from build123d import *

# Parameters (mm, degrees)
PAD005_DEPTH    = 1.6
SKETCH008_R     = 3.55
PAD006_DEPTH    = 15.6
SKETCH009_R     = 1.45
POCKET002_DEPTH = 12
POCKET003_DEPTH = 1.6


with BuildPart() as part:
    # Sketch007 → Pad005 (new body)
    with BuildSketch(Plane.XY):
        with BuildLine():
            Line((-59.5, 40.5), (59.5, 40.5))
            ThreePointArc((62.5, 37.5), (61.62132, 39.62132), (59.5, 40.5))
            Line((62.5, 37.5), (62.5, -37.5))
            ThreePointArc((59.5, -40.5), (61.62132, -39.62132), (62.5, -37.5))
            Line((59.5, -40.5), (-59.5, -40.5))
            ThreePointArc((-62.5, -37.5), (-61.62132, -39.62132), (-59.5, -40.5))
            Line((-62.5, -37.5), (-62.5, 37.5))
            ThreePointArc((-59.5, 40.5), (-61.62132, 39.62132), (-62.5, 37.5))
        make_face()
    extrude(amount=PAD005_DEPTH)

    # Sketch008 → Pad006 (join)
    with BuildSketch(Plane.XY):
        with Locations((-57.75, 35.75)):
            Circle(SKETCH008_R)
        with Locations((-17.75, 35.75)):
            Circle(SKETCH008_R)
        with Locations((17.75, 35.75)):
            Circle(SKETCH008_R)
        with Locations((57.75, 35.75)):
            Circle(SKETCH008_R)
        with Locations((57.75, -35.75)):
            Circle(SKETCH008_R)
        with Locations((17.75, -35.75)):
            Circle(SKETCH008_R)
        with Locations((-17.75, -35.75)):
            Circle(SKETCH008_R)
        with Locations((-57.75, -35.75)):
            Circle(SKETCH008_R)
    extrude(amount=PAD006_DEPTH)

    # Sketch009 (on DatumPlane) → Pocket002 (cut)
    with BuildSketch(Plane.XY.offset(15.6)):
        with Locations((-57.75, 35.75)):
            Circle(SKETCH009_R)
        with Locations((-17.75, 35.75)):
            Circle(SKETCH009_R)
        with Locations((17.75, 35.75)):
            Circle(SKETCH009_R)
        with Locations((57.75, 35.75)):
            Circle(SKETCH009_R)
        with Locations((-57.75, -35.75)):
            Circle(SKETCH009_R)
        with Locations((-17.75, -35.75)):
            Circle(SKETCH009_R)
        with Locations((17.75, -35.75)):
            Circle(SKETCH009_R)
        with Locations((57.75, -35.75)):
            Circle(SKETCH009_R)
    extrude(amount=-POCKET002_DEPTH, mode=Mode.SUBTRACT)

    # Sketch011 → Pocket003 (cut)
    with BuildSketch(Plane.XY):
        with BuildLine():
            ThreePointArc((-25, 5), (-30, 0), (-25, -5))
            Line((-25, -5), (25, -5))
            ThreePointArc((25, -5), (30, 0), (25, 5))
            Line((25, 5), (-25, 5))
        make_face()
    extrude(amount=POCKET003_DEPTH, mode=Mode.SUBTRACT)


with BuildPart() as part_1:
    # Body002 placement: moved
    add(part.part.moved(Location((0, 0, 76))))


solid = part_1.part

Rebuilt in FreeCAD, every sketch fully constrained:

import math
import FreeCAD as App
import Part
import Sketcher

doc = App.newDocument("Part")
body = doc.addObject("PartDesign::Body", "Body")

sketch1 = body.newObject("Sketcher::SketchObject", "Sketch")
sketch1.AttachmentSupport = (doc.getObject("XY_Plane"), [""])
sketch1.MapMode = "FlatFace"
sketch1.addGeometry(Part.LineSegment(App.Vector(59.5, 40.5, 0), App.Vector(-59.5, 40.5, 0)), False)
sketch1.addGeometry(Part.ArcOfCircle(Part.Circle(App.Vector(-59.5, 37.5, 0), App.Vector(0, 0, 1), 3), math.radians(90), math.radians(180)), False)
sketch1.addGeometry(Part.LineSegment(App.Vector(-62.5, 37.5, 0), App.Vector(-62.5, -37.5, 0)), False)
sketch1.addGeometry(Part.ArcOfCircle(Part.Circle(App.Vector(-59.5, -37.5, 0), App.Vector(0, 0, 1), 3), math.radians(-180), math.radians(-90)), False)
sketch1.addGeometry(Part.LineSegment(App.Vector(-59.5, -40.5, 0), App.Vector(59.5, -40.5, 0)), False)
sketch1.addGeometry(Part.ArcOfCircle(Part.Circle(App.Vector(59.5, -37.5, 0), App.Vector(0, 0, 1), 3), math.radians(-90), math.radians(0)), False)
sketch1.addGeometry(Part.LineSegment(App.Vector(62.5, -37.5, 0), App.Vector(62.5, 37.5, 0)), False)
sketch1.addGeometry(Part.ArcOfCircle(Part.Circle(App.Vector(59.5, 37.5, 0), App.Vector(0, 0, 1), 3), math.radians(0), math.radians(90)), False)
sketch1.addConstraint(Sketcher.Constraint("Tangent", 0, 2, 1, 1))
sketch1.addConstraint(Sketcher.Constraint("Tangent", 1, 2, 2, 1))
sketch1.addConstraint(Sketcher.Constraint("Tangent", 2, 2, 3, 1))
sketch1.addConstraint(Sketcher.Constraint("Tangent", 3, 2, 4, 1))
sketch1.addConstraint(Sketcher.Constraint("Tangent", 4, 2, 5, 1))
sketch1.addConstraint(Sketcher.Constraint("Tangent", 5, 2, 6, 1))
sketch1.addConstraint(Sketcher.Constraint("Tangent", 6, 2, 7, 1))
sketch1.addConstraint(Sketcher.Constraint("Tangent", 7, 2, 0, 1))
sketch1.addConstraint(Sketcher.Constraint("Horizontal", 0))
sketch1.addConstraint(Sketcher.Constraint("Vertical", 2))
sketch1.addConstraint(Sketcher.Constraint("Horizontal", 4))
sketch1.addConstraint(Sketcher.Constraint("Vertical", 6))
sketch1.addConstraint(Sketcher.Constraint("Equal", 1, 3))
sketch1.addConstraint(Sketcher.Constraint("Equal", 3, 5))
sketch1.addConstraint(Sketcher.Constraint("Equal", 5, 7))
sketch1.addConstraint(Sketcher.Constraint("Symmetric", 1, 3, 5, 3, -1, 1))
sketch1.addConstraint(Sketcher.Constraint("Radius", 1, 3.000001))
sketch1.addConstraint(Sketcher.Constraint("DistanceX", 0, 2, 0, 1, 119.0))
sketch1.addConstraint(Sketcher.Constraint("DistanceY", 2, 2, 2, 1, 75.0))
pad1 = body.newObject("PartDesign::Pad", "Pad")
pad1.Profile = sketch1
pad1.Length = 1.6

sketch2 = body.newObject("Sketcher::SketchObject", "Sketch001")
sketch2.AttachmentSupport = (doc.getObject("XY_Plane"), [""])
sketch2.MapMode = "FlatFace"
sketch2.addGeometry(Part.Circle(App.Vector(-57.8, 35.8, 0), App.Vector(0, 0, 1), 3.5), False)
sketch2.addGeometry(Part.Circle(App.Vector(-17.8, 35.8, 0), App.Vector(0, 0, 1), 3.5), False)
sketch2.addGeometry(Part.Circle(App.Vector(17.8, 35.8, 0), App.Vector(0, 0, 1), 3.5), False)
sketch2.addGeometry(Part.Circle(App.Vector(57.8, 35.8, 0), App.Vector(0, 0, 1), 3.5), False)
sketch2.addGeometry(Part.Circle(App.Vector(57.8, -35.8, 0), App.Vector(0, 0, 1), 3.5), False)
sketch2.addGeometry(Part.Circle(App.Vector(17.8, -35.8, 0), App.Vector(0, 0, 1), 3.5), False)
sketch2.addGeometry(Part.Circle(App.Vector(-17.8, -35.8, 0), App.Vector(0, 0, 1), 3.5), False)
sketch2.addGeometry(Part.Circle(App.Vector(-57.8, -35.8, 0), App.Vector(0, 0, 1), 3.5), False)
sketch2.addConstraint(Sketcher.Constraint("Equal", 0, 1))
sketch2.addConstraint(Sketcher.Constraint("Equal", 1, 2))
sketch2.addConstraint(Sketcher.Constraint("Equal", 2, 3))
sketch2.addConstraint(Sketcher.Constraint("Equal", 3, 4))
sketch2.addConstraint(Sketcher.Constraint("Equal", 4, 5))
sketch2.addConstraint(Sketcher.Constraint("Equal", 5, 6))
sketch2.addConstraint(Sketcher.Constraint("Equal", 6, 7))
sketch2.addConstraint(Sketcher.Constraint("Symmetric", 0, 3, 4, 3, -1, 1))
sketch2.addConstraint(Sketcher.Constraint("Symmetric", 1, 3, 5, 3, -1, 1))
sketch2.addConstraint(Sketcher.Constraint("Symmetric", 2, 3, 6, 3, -1, 1))
sketch2.addConstraint(Sketcher.Constraint("Symmetric", 3, 3, 7, 3, -1, 1))
sketch2.addConstraint(Sketcher.Constraint("Symmetric", 1, 3, 2, 3, -2))
sketch2.addConstraint(Sketcher.Constraint("Symmetric", 0, 3, 3, 3, -2))
sketch2.addConstraint(Sketcher.Constraint("Horizontal", 0, 3, 1, 3))
sketch2.addConstraint(Sketcher.Constraint("Diameter", 0, 7.1))
sketch2.addConstraint(Sketcher.Constraint("DistanceX", 0, 3, 1, 3, 40.0))
sketch2.addConstraint(Sketcher.Constraint("DistanceX", 1, 3, 2, 3, 35.5))
sketch2.addConstraint(Sketcher.Constraint("DistanceY", 4, 3, 3, 3, 71.5))
pad2 = body.newObject("PartDesign::Pad", "Pad001")
pad2.Profile = sketch2
pad2.Length = 15.6

sketch3 = body.newObject("Sketcher::SketchObject", "Sketch002")
sketch3.AttachmentSupport = (doc.getObject("XY_Plane"), [""])
sketch3.MapMode = "FlatFace"
sketch3.AttachmentOffset = App.Placement(App.Vector(0, 0, 15.6), App.Rotation())
sketch3.addGeometry(Part.Circle(App.Vector(-57.8, 35.8, 0), App.Vector(0, 0, 1), 1.4), False)
sketch3.addGeometry(Part.Circle(App.Vector(-17.8, 35.8, 0), App.Vector(0, 0, 1), 1.4), False)
sketch3.addGeometry(Part.Circle(App.Vector(17.8, 35.8, 0), App.Vector(0, 0, 1), 1.4), False)
sketch3.addGeometry(Part.Circle(App.Vector(57.8, 35.8, 0), App.Vector(0, 0, 1), 1.4), False)
sketch3.addGeometry(Part.Circle(App.Vector(-57.8, -35.8, 0), App.Vector(0, 0, 1), 1.4), False)
sketch3.addGeometry(Part.Circle(App.Vector(-17.8, -35.8, 0), App.Vector(0, 0, 1), 1.4), False)
sketch3.addGeometry(Part.Circle(App.Vector(17.8, -35.8, 0), App.Vector(0, 0, 1), 1.4), False)
sketch3.addGeometry(Part.Circle(App.Vector(57.8, -35.8, 0), App.Vector(0, 0, 1), 1.4), False)
sketch3.addConstraint(Sketcher.Constraint("Equal", 0, 1))
sketch3.addConstraint(Sketcher.Constraint("Equal", 1, 2))
sketch3.addConstraint(Sketcher.Constraint("Equal", 2, 3))
sketch3.addConstraint(Sketcher.Constraint("Equal", 3, 4))
sketch3.addConstraint(Sketcher.Constraint("Equal", 4, 5))
sketch3.addConstraint(Sketcher.Constraint("Equal", 5, 6))
sketch3.addConstraint(Sketcher.Constraint("Equal", 6, 7))
sketch3.addConstraint(Sketcher.Constraint("Symmetric", 3, 3, 4, 3, -1, 1))
sketch3.addConstraint(Sketcher.Constraint("Symmetric", 2, 3, 5, 3, -1, 1))
sketch3.addConstraint(Sketcher.Constraint("Symmetric", 1, 3, 6, 3, -1, 1))
sketch3.addConstraint(Sketcher.Constraint("Symmetric", 0, 3, 7, 3, -1, 1))
sketch3.addConstraint(Sketcher.Constraint("Symmetric", 1, 3, 2, 3, -2))
sketch3.addConstraint(Sketcher.Constraint("Symmetric", 0, 3, 3, 3, -2))
sketch3.addConstraint(Sketcher.Constraint("Horizontal", 0, 3, 1, 3))
sketch3.addConstraint(Sketcher.Constraint("Diameter", 0, 2.9))
sketch3.addConstraint(Sketcher.Constraint("DistanceX", 0, 3, 1, 3, 40.0))
sketch3.addConstraint(Sketcher.Constraint("DistanceX", 1, 3, 2, 3, 35.5))
sketch3.addConstraint(Sketcher.Constraint("DistanceY", 4, 3, 0, 3, 71.5))
pocket1 = body.newObject("PartDesign::Pocket", "Pocket")
pocket1.Profile = sketch3
pocket1.Length = 12

sketch4 = body.newObject("Sketcher::SketchObject", "Sketch003")
sketch4.AttachmentSupport = (doc.getObject("XY_Plane"), [""])
sketch4.MapMode = "FlatFace"
sketch4.addGeometry(Part.ArcOfCircle(Part.Circle(App.Vector(-25, 0, 0), App.Vector(0, 0, 1), 5), math.radians(90), math.radians(270)), False)
sketch4.addGeometry(Part.LineSegment(App.Vector(-25, -5, 0), App.Vector(25, -5, 0)), False)
sketch4.addGeometry(Part.ArcOfCircle(Part.Circle(App.Vector(25, 0, 0), App.Vector(0, 0, 1), 5), math.radians(-90), math.radians(90)), False)
sketch4.addGeometry(Part.LineSegment(App.Vector(25, 5, 0), App.Vector(-25, 5, 0)), False)
sketch4.addConstraint(Sketcher.Constraint("Tangent", 0, 2, 1, 1))
sketch4.addConstraint(Sketcher.Constraint("Tangent", 1, 2, 2, 1))
sketch4.addConstraint(Sketcher.Constraint("Tangent", 2, 2, 3, 1))
sketch4.addConstraint(Sketcher.Constraint("Tangent", 3, 2, 0, 1))
sketch4.addConstraint(Sketcher.Constraint("Horizontal", 1))
sketch4.addConstraint(Sketcher.Constraint("Horizontal", 3))
sketch4.addConstraint(Sketcher.Constraint("Symmetric", 0, 3, 2, 3, -1, 1))
sketch4.addConstraint(Sketcher.Constraint("Radius", 0, 5.0))
sketch4.addConstraint(Sketcher.Constraint("DistanceX", 1, 1, 1, 2, 50.0))
pocket2 = body.newObject("PartDesign::Pocket", "Pocket001")
pocket2.Profile = sketch4
pocket2.Length = 1.6
pocket2.Reversed = True
body2 = doc.addObject("PartDesign::Body", "Body001")
doc.recompute()

body.Placement = App.Placement(App.Vector(0, 0, 76), App.Rotation(App.Vector(0, 0, 1), 0))
boolean = body2.newObject("PartDesign::Boolean", "Boolean")
boolean.Type = "Fuse"
boolean.addObjects([body])

doc.recompute()
